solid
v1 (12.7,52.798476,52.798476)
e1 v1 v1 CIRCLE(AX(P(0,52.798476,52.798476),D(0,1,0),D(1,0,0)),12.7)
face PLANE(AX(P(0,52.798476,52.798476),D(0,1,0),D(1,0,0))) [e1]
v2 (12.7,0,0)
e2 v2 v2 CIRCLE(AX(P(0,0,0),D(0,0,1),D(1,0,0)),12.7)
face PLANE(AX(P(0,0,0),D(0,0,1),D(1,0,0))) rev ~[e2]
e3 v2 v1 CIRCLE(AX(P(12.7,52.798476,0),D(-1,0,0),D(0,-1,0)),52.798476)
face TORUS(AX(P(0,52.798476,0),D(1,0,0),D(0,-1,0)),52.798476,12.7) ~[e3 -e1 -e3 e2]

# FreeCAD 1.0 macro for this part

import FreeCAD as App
import Part
import Sketcher
from FreeCAD import Vector
Q = App.Units.Quantity

doc = App.newDocument("Part")
params = doc.addObject("Spreadsheet::Sheet", "Params")
for row, (alias, value) in enumerate([
    ("sketch1_diameter", "1 in"),
    ("revolution_angle", "90 deg"),
], start=1):
    params.set(f"A{row}", alias)
    params.set(f"B{row}", "=" + value)
    params.setAlias(f"B{row}", alias)

body = doc.addObject("PartDesign::Body", "Body")

sketch1 = body.newObject("Sketcher::SketchObject", "Sketch")
sketch1.AttachmentSupport = (doc.getObject("XY_Plane"), [""])
sketch1.MapMode = "FlatFace"
sketch1.addGeometry(Part.Circle(Vector(0, 0, 0), Vector(0, 0, 1), 13), False)
sketch1.addGeometry(Part.LineSegment(Vector(0, 53, 0), Vector(10, 53, 0)), True)
sketch1.addConstraint([
    Sketcher.Constraint("Horizontal", 1),
    Sketcher.Constraint("Coincident", 0, 3, -1, 1),
    Sketcher.Constraint("PointOnObject", 1, 1, -2),
    Sketcher.Constraint("Diameter", 0, Q("1 in")),
    Sketcher.Constraint("DistanceX", 1, 1, 1, 2, Q("10 mm")),
    Sketcher.Constraint("DistanceY", -1, 1, 1, 1, Q("52.798476 mm")),
])
sketch1.setExpression("Constraints[3]", "Params.sketch1_diameter")
revolution = body.newObject("PartDesign::Revolution", "Revolution")
revolution.Profile = sketch1
revolution.ReferenceAxis = (sketch1, ["Axis0"])
revolution.setExpression("Angle", "Params.revolution_angle")
revolution.Reversed = True

doc.recompute()
